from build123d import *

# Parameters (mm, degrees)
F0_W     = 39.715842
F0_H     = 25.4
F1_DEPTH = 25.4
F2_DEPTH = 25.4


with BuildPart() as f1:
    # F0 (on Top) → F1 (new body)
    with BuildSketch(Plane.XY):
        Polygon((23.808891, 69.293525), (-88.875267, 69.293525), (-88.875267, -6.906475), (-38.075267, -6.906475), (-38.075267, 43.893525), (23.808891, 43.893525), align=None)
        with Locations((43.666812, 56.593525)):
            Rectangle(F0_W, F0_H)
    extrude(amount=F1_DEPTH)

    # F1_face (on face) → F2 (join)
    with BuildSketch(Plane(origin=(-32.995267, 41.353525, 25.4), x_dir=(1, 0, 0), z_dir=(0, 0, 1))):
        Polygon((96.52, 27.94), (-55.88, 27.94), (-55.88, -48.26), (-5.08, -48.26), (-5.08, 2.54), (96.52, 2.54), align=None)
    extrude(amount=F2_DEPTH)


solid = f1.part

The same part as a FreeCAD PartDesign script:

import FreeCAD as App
import Part
import Sketcher
Q = App.Units.Quantity

doc = App.newDocument("Part")
body = doc.addObject("PartDesign::Body", "Body")

# Sketch on XY plane
sketch1 = doc.addObject("Sketcher::SketchObject", "Sketch")
body.addObject(sketch1)
sketch1.AttachmentSupport = (doc.XY_Plane, [""])
sketch1.MapMode = "FlatFace"
sketch1.addGeometry(Part.LineSegment(App.Vector(-89, 69, 0), App.Vector(-89, -7, 0)), False)
sketch1.addGeometry(Part.LineSegment(App.Vector(-89, -7, 0), App.Vector(-38, -7, 0)), False)
sketch1.addGeometry(Part.LineSegment(App.Vector(-38, -7, 0), App.Vector(-38, 44, 0)), False)
sketch1.addGeometry(Part.LineSegment(App.Vector(-38, 44, 0), App.Vector(64, 44, 0)), False)
sketch1.addGeometry(Part.LineSegment(App.Vector(64, 44, 0), App.Vector(64, 69, 0)), False)
sketch1.addGeometry(Part.LineSegment(App.Vector(64, 69, 0), App.Vector(-89, 69, 0)), False)
sketch1.addConstraint(Sketcher.Constraint("Coincident", 0, 2, 1, 1))
sketch1.addConstraint(Sketcher.Constraint("Coincident", 1, 2, 2, 1))
sketch1.addConstraint(Sketcher.Constraint("Coincident", 2, 2, 3, 1))
sketch1.addConstraint(Sketcher.Constraint("Coincident", 3, 2, 4, 1))
sketch1.addConstraint(Sketcher.Constraint("Coincident", 4, 2, 5, 1))
sketch1.addConstraint(Sketcher.Constraint("Coincident", 5, 2, 0, 1))
sketch1.addConstraint(Sketcher.Constraint("Vertical", 0))
sketch1.addConstraint(Sketcher.Constraint("Horizontal", 1))
sketch1.addConstraint(Sketcher.Constraint("Vertical", 2))
sketch1.addConstraint(Sketcher.Constraint("Horizontal", 3))
sketch1.addConstraint(Sketcher.Constraint("Vertical", 4))
sketch1.addConstraint(Sketcher.Constraint("Horizontal", 5))
sketch1.addConstraint(Sketcher.Constraint("Equal", 1, 2))
sketch1.addConstraint(Sketcher.Constraint("DistanceX", 1, 1, 1, 2, Q("2 in")))
sketch1.addConstraint(Sketcher.Constraint("DistanceX", 3, 1, 3, 2, Q("4 in")))
sketch1.addConstraint(Sketcher.Constraint("DistanceY", 0, 2, 0, 1, Q("3 in")))
sketch1.addConstraint(Sketcher.Constraint("DistanceX", 0, 2, -1, 1, Q("88.875267 mm")))
sketch1.addConstraint(Sketcher.Constraint("DistanceY", 0, 2, -1, 1, Q("6.906475 mm")))
pad1 = doc.addObject("PartDesign::Pad", "Pad")
body.addObject(pad1)
pad1.Profile = sketch1
pad1.Length = Q("1 in")

# Sketch on XY plane
sketch2 = doc.addObject("Sketcher::SketchObject", "Sketch001")
body.addObject(sketch2)
sketch2.AttachmentSupport = (doc.XY_Plane, [""])
sketch2.MapMode = "FlatFace"
sketch2.AttachmentOffset = App.Placement(App.Vector(0, 0, 1 * 25.4), App.Rotation())
sketch2.addGeometry(Part.LineSegment(App.Vector(64, 69, 0), App.Vector(-89, 69, 0)), False)
sketch2.addGeometry(Part.LineSegment(App.Vector(-89, 69, 0), App.Vector(-89, -7, 0)), False)
sketch2.addGeometry(Part.LineSegment(App.Vector(-89, -7, 0), App.Vector(-38, -7, 0)), False)
sketch2.addGeometry(Part.LineSegment(App.Vector(-38, -7, 0), App.Vector(-38, 44, 0)), False)
sketch2.addGeometry(Part.LineSegment(App.Vector(-38, 44, 0), App.Vector(64, 44, 0)), False)
sketch2.addGeometry(Part.LineSegment(App.Vector(64, 44, 0), App.Vector(64, 69, 0)), False)
sketch2.addConstraint(Sketcher.Constraint("Coincident", 0, 2, 1, 1))
sketch2.addConstraint(Sketcher.Constraint("Coincident", 1, 2, 2, 1))
sketch2.addConstraint(Sketcher.Constraint("Coincident", 2, 2, 3, 1))
sketch2.addConstraint(Sketcher.Constraint("Coincident", 3, 2, 4, 1))
sketch2.addConstraint(Sketcher.Constraint("Coincident", 4, 2, 5, 1))
sketch2.addConstraint(Sketcher.Constraint("Coincident", 5, 2, 0, 1))
sketch2.addConstraint(Sketcher.Constraint("Horizontal", 0))
sketch2.addConstraint(Sketcher.Constraint("Vertical", 1))
sketch2.addConstraint(Sketcher.Constraint("Horizontal", 2))
sketch2.addConstraint(Sketcher.Constraint("Vertical", 3))
sketch2.addConstraint(Sketcher.Constraint("Horizontal", 4))
sketch2.addConstraint(Sketcher.Constraint("Vertical", 5))
sketch2.addConstraint(Sketcher.Constraint("Equal", 2, 3))
sketch2.addConstraint(Sketcher.Constraint("DistanceX", 0, 2, 0, 1, Q("6 in")))
sketch2.addConstraint(Sketcher.Constraint("DistanceX", 2, 1, 2, 2, Q("2 in")))
sketch2.addConstraint(Sketcher.Constraint("DistanceY", 1, 2, 1, 1, Q("3 in")))
sketch2.addConstraint(Sketcher.Constraint("DistanceX", 0, 2, -1, 1, Q("88.875267 mm")))
sketch2.addConstraint(Sketcher.Constraint("DistanceY", -1, 1, 0, 2, Q("69.293525 mm")))
pad2 = doc.addObject("PartDesign::Pad", "Pad001")
body.addObject(pad2)
pad2.Profile = sketch2
pad2.Length = Q("1 in")

doc.recompute()
